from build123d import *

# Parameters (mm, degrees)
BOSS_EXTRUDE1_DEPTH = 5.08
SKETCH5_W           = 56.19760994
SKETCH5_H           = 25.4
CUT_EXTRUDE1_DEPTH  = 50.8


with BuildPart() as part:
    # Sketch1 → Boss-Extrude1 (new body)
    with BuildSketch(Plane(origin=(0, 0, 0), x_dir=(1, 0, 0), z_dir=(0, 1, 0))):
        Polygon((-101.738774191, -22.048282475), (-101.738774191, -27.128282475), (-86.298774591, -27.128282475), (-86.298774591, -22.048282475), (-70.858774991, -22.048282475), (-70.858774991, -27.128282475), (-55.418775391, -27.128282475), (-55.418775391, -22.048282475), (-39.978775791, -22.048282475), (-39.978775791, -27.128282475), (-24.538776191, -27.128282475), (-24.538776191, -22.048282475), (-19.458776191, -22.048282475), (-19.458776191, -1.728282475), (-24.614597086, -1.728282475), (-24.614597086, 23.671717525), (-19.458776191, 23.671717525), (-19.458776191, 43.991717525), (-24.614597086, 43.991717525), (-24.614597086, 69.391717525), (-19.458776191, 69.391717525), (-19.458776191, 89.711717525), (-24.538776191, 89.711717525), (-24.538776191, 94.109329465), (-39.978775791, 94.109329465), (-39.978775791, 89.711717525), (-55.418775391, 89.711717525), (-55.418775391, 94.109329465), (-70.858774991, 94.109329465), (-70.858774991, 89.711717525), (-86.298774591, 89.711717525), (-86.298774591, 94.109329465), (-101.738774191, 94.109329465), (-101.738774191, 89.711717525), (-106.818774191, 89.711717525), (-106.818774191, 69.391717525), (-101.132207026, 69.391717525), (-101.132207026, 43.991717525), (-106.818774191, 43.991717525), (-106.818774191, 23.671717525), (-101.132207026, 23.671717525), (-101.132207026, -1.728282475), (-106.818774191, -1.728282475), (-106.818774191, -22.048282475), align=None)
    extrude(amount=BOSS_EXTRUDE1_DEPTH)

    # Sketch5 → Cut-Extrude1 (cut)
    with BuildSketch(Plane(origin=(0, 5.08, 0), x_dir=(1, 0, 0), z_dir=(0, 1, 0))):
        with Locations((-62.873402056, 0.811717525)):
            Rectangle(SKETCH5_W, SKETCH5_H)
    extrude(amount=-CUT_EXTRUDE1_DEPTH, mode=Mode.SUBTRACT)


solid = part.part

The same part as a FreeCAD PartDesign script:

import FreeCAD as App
import Part
import Sketcher
from FreeCAD import Vector
Q = App.Units.Quantity

doc = App.newDocument("Part")
params = doc.addObject("Spreadsheet::Sheet", "Params")
for row, (alias, value) in enumerate([
    ("sketch1_height", "1 in"),
    ("sketch1_width", "0.2 in"),
    ("sketch1_height2", "0.8 in"),
    ("pad1_length", "0.2 in"),
    ("sketch2_height", "1 in"),
    ("pocket1_length", "2 in"),
], start=1):
    params.set(f"A{row}", alias)
    params.set(f"B{row}", "=" + value)
    params.setAlias(f"B{row}", alias)

body = doc.addObject("PartDesign::Body", "Body")

sketch1 = body.newObject("Sketcher::SketchObject", "Sketch")
sketch1.AttachmentSupport = (doc.getObject("XZ_Plane"), [""])
sketch1.MapMode = "FlatFace"
sketch1.addGeometry(Part.LineSegment(Vector(-101.7, 22, 0), Vector(-101.7, 27.1, 0)), False)
sketch1.addGeometry(Part.LineSegment(Vector(-101.7, 27.1, 0), Vector(-86.3, 27.1, 0)), False)
sketch1.addGeometry(Part.LineSegment(Vector(-86.3, 27.1, 0), Vector(-86.3, 22, 0)), False)
sketch1.addGeometry(Part.LineSegment(Vector(-86.3, 22, 0), Vector(-70.9, 22, 0)), False)
sketch1.addGeometry(Part.LineSegment(Vector(-70.9, 22, 0), Vector(-70.9, 27.1, 0)), False)
sketch1.addGeometry(Part.LineSegment(Vector(-70.9, 27.1, 0), Vector(-55.4, 27.1, 0)), False)
sketch1.addGeometry(Part.LineSegment(Vector(-55.4, 27.1, 0), Vector(-55.4, 22, 0)), False)
sketch1.addGeometry(Part.LineSegment(Vector(-55.4, 22, 0), Vector(-40, 22, 0)), False)
sketch1.addGeometry(Part.LineSegment(Vector(-40, 22, 0), Vector(-40, 27.1, 0)), False)
sketch1.addGeometry(Part.LineSegment(Vector(-40, 27.1, 0), Vector(-24.5, 27.1, 0)), False)
sketch1.addGeometry(Part.LineSegment(Vector(-24.5, 27.1, 0), Vector(-24.5, 22, 0)), False)
sketch1.addGeometry(Part.LineSegment(Vector(-24.5, 22, 0), Vector(-19.5, 22, 0)), False)
sketch1.addGeometry(Part.LineSegment(Vector(-19.5, 22, 0), Vector(-19.5, 1.7, 0)), False)
sketch1.addGeometry(Part.LineSegment(Vector(-19.5, 1.7, 0), Vector(-24.6, 1.7, 0)), False)
sketch1.addGeometry(Part.LineSegment(Vector(-24.6, 1.7, 0), Vector(-24.6, -23.7, 0)), False)
sketch1.addGeometry(Part.LineSegment(Vector(-24.6, -23.7, 0), Vector(-19.5, -23.7, 0)), False)
sketch1.addGeometry(Part.LineSegment(Vector(-19.5, -23.7, 0), Vector(-19.5, -44, 0)), False)
sketch1.addGeometry(Part.LineSegment(Vector(-19.5, -44, 0), Vector(-24.6, -44, 0)), False)
sketch1.addGeometry(Part.LineSegment(Vector(-24.6, -44, 0), Vector(-24.6, -69.4, 0)), False)
sketch1.addGeometry(Part.LineSegment(Vector(-24.6, -69.4, 0), Vector(-19.5, -69.4, 0)), False)
sketch1.addGeometry(Part.LineSegment(Vector(-19.5, -69.4, 0), Vector(-19.5, -89.7, 0)), False)
sketch1.addGeometry(Part.LineSegment(Vector(-19.5, -89.7, 0), Vector(-24.5, -89.7, 0)), False)
sketch1.addGeometry(Part.LineSegment(Vector(-24.5, -89.7, 0), Vector(-24.5, -94.1, 0)), False)
sketch1.addGeometry(Part.LineSegment(Vector(-24.5, -94.1, 0), Vector(-40, -94.1, 0)), False)
sketch1.addGeometry(Part.LineSegment(Vector(-40, -94.1, 0), Vector(-40, -89.7, 0)), False)
sketch1.addGeometry(Part.LineSegment(Vector(-40, -89.7, 0), Vector(-55.4, -89.7, 0)), False)
sketch1.addGeometry(Part.LineSegment(Vector(-55.4, -89.7, 0), Vector(-55.4, -94.1, 0)), False)
sketch1.addGeometry(Part.LineSegment(Vector(-55.4, -94.1, 0), Vector(-70.9, -94.1, 0)), False)
sketch1.addGeometry(Part.LineSegment(Vector(-70.9, -94.1, 0), Vector(-70.9, -89.7, 0)), False)
sketch1.addGeometry(Part.LineSegment(Vector(-70.9, -89.7, 0), Vector(-86.3, -89.7, 0)), False)
sketch1.addGeometry(Part.LineSegment(Vector(-86.3, -89.7, 0), Vector(-86.3, -94.1, 0)), False)
sketch1.addGeometry(Part.LineSegment(Vector(-86.3, -94.1, 0), Vector(-101.7, -94.1, 0)), False)
sketch1.addGeometry(Part.LineSegment(Vector(-101.7, -94.1, 0), Vector(-101.7, -89.7, 0)), False)
sketch1.addGeometry(Part.LineSegment(Vector(-101.7, -89.7, 0), Vector(-106.8, -89.7, 0)), False)
sketch1.addGeometry(Part.LineSegment(Vector(-106.8, -89.7, 0), Vector(-106.8, -69.4, 0)), False)
sketch1.addGeometry(Part.LineSegment(Vector(-106.8, -69.4, 0), Vector(-101.1, -69.4, 0)), False)
sketch1.addGeometry(Part.LineSegment(Vector(-101.1, -69.4, 0), Vector(-101.1, -44, 0)), False)
sketch1.addGeometry(Part.LineSegment(Vector(-101.1, -44, 0), Vector(-106.8, -44, 0)), False)
sketch1.addGeometry(Part.LineSegment(Vector(-106.8, -44, 0), Vector(-106.8, -23.7, 0)), False)
sketch1.addGeometry(Part.LineSegment(Vector(-106.8, -23.7, 0), Vector(-101.1, -23.7, 0)), False)
sketch1.addGeometry(Part.LineSegment(Vector(-101.1, -23.7, 0), Vector(-101.1, 1.7, 0)), False)
sketch1.addGeometry(Part.LineSegment(Vector(-101.1, 1.7, 0), Vector(-106.8, 1.7, 0)), False)
sketch1.addGeometry(Part.LineSegment(Vector(-106.8, 1.7, 0), Vector(-106.8, 22, 0)), False)
sketch1.addGeometry(Part.LineSegment(Vector(-106.8, 22, 0), Vector(-101.7, 22, 0)), False)
sketch1.addConstraint(Sketcher.Constraint("Coincident", 0, 2, 1, 1))
sketch1.addConstraint(Sketcher.Constraint("Coincident", 1, 2, 2, 1))
sketch1.addConstraint(Sketcher.Constraint("Coincident", 2, 2, 3, 1))
sketch1.addConstraint(Sketcher.Constraint("Coincident", 3, 2, 4, 1))
sketch1.addConstraint(Sketcher.Constraint("Coincident", 4, 2, 5, 1))
sketch1.addConstraint(Sketcher.Constraint("Coincident", 5, 2, 6, 1))
sketch1.addConstraint(Sketcher.Constraint("Coincident", 6, 2, 7, 1))
sketch1.addConstraint(Sketcher.Constraint("Coincident", 7, 2, 8, 1))
sketch1.addConstraint(Sketcher.Constraint("Coincident", 8, 2, 9, 1))
sketch1.addConstraint(Sketcher.Constraint("Coincident", 9, 2, 10, 1))
sketch1.addConstraint(Sketcher.Constraint("Coincident", 10, 2, 11, 1))
sketch1.addConstraint(Sketcher.Constraint("Coincident", 11, 2, 12, 1))
sketch1.addConstraint(Sketcher.Constraint("Coincident", 12, 2, 13, 1))
sketch1.addConstraint(Sketcher.Constraint("Coincident", 13, 2, 14, 1))
sketch1.addConstraint(Sketcher.Constraint("Coincident", 14, 2, 15, 1))
sketch1.addConstraint(Sketcher.Constraint("Coincident", 15, 2, 16, 1))
sketch1.addConstraint(Sketcher.Constraint("Coincident", 16, 2, 17, 1))
sketch1.addConstraint(Sketcher.Constraint("Coincident", 17, 2, 18, 1))
sketch1.addConstraint(Sketcher.Constraint("Coincident", 18, 2, 19, 1))
sketch1.addConstraint(Sketcher.Constraint("Coincident", 19, 2, 20, 1))
sketch1.addConstraint(Sketcher.Constraint("Coincident", 20, 2, 21, 1))
sketch1.addConstraint(Sketcher.Constraint("Coincident", 21, 2, 22, 1))
sketch1.addConstraint(Sketcher.Constraint("Coincident", 22, 2, 23, 1))
sketch1.addConstraint(Sketcher.Constraint("Coincident", 23, 2, 24, 1))
sketch1.addConstraint(Sketcher.Constraint("Coincident", 24, 2, 25, 1))
sketch1.addConstraint(Sketcher.Constraint("Coincident", 25, 2, 26, 1))
sketch1.addConstraint(Sketcher.Constraint("Coincident", 26, 2, 27, 1))
sketch1.addConstraint(Sketcher.Constraint("Coincident", 27, 2, 28, 1))
sketch1.addConstraint(Sketcher.Constraint("Coincident", 28, 2, 29, 1))
sketch1.addConstraint(Sketcher.Constraint("Coincident", 29, 2, 30, 1))
sketch1.addConstraint(Sketcher.Constraint("Coincident", 30, 2, 31, 1))
sketch1.addConstraint(Sketcher.Constraint("Coincident", 31, 2, 32, 1))
sketch1.addConstraint(Sketcher.Constraint("Coincident", 32, 2, 33, 1))
sketch1.addConstraint(Sketcher.Constraint("Coincident", 33, 2, 34, 1))
sketch1.addConstraint(Sketcher.Constraint("Coincident", 34, 2, 35, 1))
sketch1.addConstraint(Sketcher.Constraint("Coincident", 35, 2, 36, 1))
sketch1.addConstraint(Sketcher.Constraint("Coincident", 36, 2, 37, 1))
sketch1.addConstraint(Sketcher.Constraint("Coincident", 37, 2, 38, 1))
sketch1.addConstraint(Sketcher.Constraint("Coincident", 38, 2, 39, 1))
sketch1.addConstraint(Sketcher.Constraint("Coincident", 39, 2, 40, 1))
sketch1.addConstraint(Sketcher.Constraint("Coincident", 40, 2, 41, 1))
sketch1.addConstraint(Sketcher.Constraint("Coincident", 41, 2, 42, 1))
sketch1.addConstraint(Sketcher.Constraint("Coincident", 42, 2, 43, 1))
sketch1.addConstraint(Sketcher.Constraint("Coincident", 43, 2, 0, 1))
sketch1.addConstraint(Sketcher.Constraint("Vertical", 0))
sketch1.addConstraint(Sketcher.Constraint("Horizontal", 1))
sketch1.addConstraint(Sketcher.Constraint("Vertical", 2))
sketch1.addConstraint(Sketcher.Constraint("Horizontal", 3))
sketch1.addConstraint(Sketcher.Constraint("Vertical", 4))
sketch1.addConstraint(Sketcher.Constraint("Horizontal", 5))
sketch1.addConstraint(Sketcher.Constraint("Vertical", 6))
sketch1.addConstraint(Sketcher.Constraint("Horizontal", 7))
sketch1.addConstraint(Sketcher.Constraint("Vertical", 8))
sketch1.addConstraint(Sketcher.Constraint("Horizontal", 9))
sketch1.addConstraint(Sketcher.Constraint("Vertical", 10))
sketch1.addConstraint(Sketcher.Constraint("Horizontal", 11))
sketch1.addConstraint(Sketcher.Constraint("Vertical", 12))
sketch1.addConstraint(Sketcher.Constraint("Horizontal", 13))
sketch1.addConstraint(Sketcher.Constraint("Vertical", 14))
sketch1.addConstraint(Sketcher.Constraint("Horizontal", 15))
sketch1.addConstraint(Sketcher.Constraint("Vertical", 16))
sketch1.addConstraint(Sketcher.Constraint("Horizontal", 17))
sketch1.addConstraint(Sketcher.Constraint("Vertical", 18))
sketch1.addConstraint(Sketcher.Constraint("Horizontal", 19))
sketch1.addConstraint(Sketcher.Constraint("Vertical", 20))
sketch1.addConstraint(Sketcher.Constraint("Horizontal", 21))
sketch1.addConstraint(Sketcher.Constraint("Vertical", 22))
sketch1.addConstraint(Sketcher.Constraint("Horizontal", 23))
sketch1.addConstraint(Sketcher.Constraint("Vertical", 24))
sketch1.addConstraint(Sketcher.Constraint("Horizontal", 25))
sketch1.addConstraint(Sketcher.Constraint("Vertical", 26))
sketch1.addConstraint(Sketcher.Constraint("Horizontal", 27))
sketch1.addConstraint(Sketcher.Constraint("Vertical", 28))
sketch1.addConstraint(Sketcher.Constraint("Horizontal", 29))
sketch1.addConstraint(Sketcher.Constraint("Vertical", 30))
sketch1.addConstraint(Sketcher.Constraint("Horizontal", 31))
sketch1.addConstraint(Sketcher.Constraint("Vertical", 32))
sketch1.addConstraint(Sketcher.Constraint("Horizontal", 33))
sketch1.addConstraint(Sketcher.Constraint("Vertical", 34))
sketch1.addConstraint(Sketcher.Constraint("Horizontal", 35))
sketch1.addConstraint(Sketcher.Constraint("Vertical", 36))
sketch1.addConstraint(Sketcher.Constraint("Horizontal", 37))
sketch1.addConstraint(Sketcher.Constraint("Vertical", 38))
sketch1.addConstraint(Sketcher.Constraint("Horizontal", 39))
sketch1.addConstraint(Sketcher.Constraint("Vertical", 40))
sketch1.addConstraint(Sketcher.Constraint("Horizontal", 41))
sketch1.addConstraint(Sketcher.Constraint("Vertical", 42))
sketch1.addConstraint(Sketcher.Constraint("Horizontal", 43))
sketch1.addConstraint(Sketcher.Constraint("Horizontal", 1, 2, 4, 2))
sketch1.addConstraint(Sketcher.Constraint("Horizontal", 3, 2, 6, 2))
sketch1.addConstraint(Sketcher.Constraint("Horizontal", 5, 2, 8, 2))
sketch1.addConstraint(Sketcher.Constraint("Horizontal", 7, 2, 10, 2))
sketch1.addConstraint(Sketcher.Constraint("Horizontal", 21, 2, 24, 2))
sketch1.addConstraint(Sketcher.Constraint("Horizontal", 23, 2, 26, 2))
sketch1.addConstraint(Sketcher.Constraint("Horizontal", 25, 2, 28, 2))
sketch1.addConstraint(Sketcher.Constraint("Horizontal", 27, 2, 30, 2))
sketch1.addConstraint(Sketcher.Constraint("Horizontal", 29, 2, 32, 2))
sketch1.addConstraint(Sketcher.Constraint("Horizontal", 19, 2, 34, 2))
sketch1.addConstraint(Sketcher.Constraint("Horizontal", 17, 2, 36, 2))
sketch1.addConstraint(Sketcher.Constraint("Horizontal", 15, 2, 38, 2))
sketch1.addConstraint(Sketcher.Constraint("Horizontal", 13, 2, 40, 2))
sketch1.addConstraint(Sketcher.Constraint("Horizontal", 11, 2, 42, 2))
sketch1.addConstraint(Sketcher.Constraint("Vertical", 12, 2, 15, 2))
sketch1.addConstraint(Sketcher.Constraint("Vertical", 14, 2, 17, 2))
sketch1.addConstraint(Sketcher.Constraint("Vertical", 16, 2, 19, 2))
sketch1.addConstraint(Sketcher.Constraint("Vertical", 10, 2, 21, 2))
sketch1.addConstraint(Sketcher.Constraint("Vertical", 8, 2, 23, 2))
sketch1.addConstraint(Sketcher.Constraint("Vertical", 6, 2, 25, 2))
sketch1.addConstraint(Sketcher.Constraint("Vertical", 4, 2, 27, 2))
sketch1.addConstraint(Sketcher.Constraint("Vertical", 2, 2, 29, 2))
sketch1.addConstraint(Sketcher.Constraint("Vertical", 0, 2, 31, 2))
sketch1.addConstraint(Sketcher.Constraint("Vertical", 34, 2, 37, 2))
sketch1.addConstraint(Sketcher.Constraint("Vertical", 36, 2, 39, 2))
sketch1.addConstraint(Sketcher.Constraint("Vertical", 38, 2, 41, 2))
sketch1.addConstraint(Sketcher.Constraint("Equal", 1, 3))
sketch1.addConstraint(Sketcher.Constraint("Equal", 3, 5))
sketch1.addConstraint(Sketcher.Constraint("Equal", 5, 7))
sketch1.addConstraint(Sketcher.Constraint("Equal", 7, 9))
sketch1.addConstraint(Sketcher.Constraint("Equal", 21, 33))
sketch1.addConstraint(Sketcher.Constraint("Equal", 43, 0))
sketch1.addConstraint(Sketcher.Constraint("Equal", 12, 16))
sketch1.addConstraint(Sketcher.Constraint("Equal", 14, 18))
sketch1.addConstraint(Sketcher.Constraint("Equal", 16, 20))
sketch1.addConstraint(Sketcher.Constraint("DistanceY", 14, 2, 14, 1, Q("1 in")))
sketch1.addConstraint(Sketcher.Constraint("DistanceX", 11, 1, 11, 2, Q("0.2 in")))
sketch1.addConstraint(Sketcher.Constraint("DistanceY", 12, 2, 12, 1, Q("0.8 in")))
sketch1.addConstraint(Sketcher.Constraint("DistanceX", 1, 1, 1, 2, 15.44))
sketch1.addConstraint(Sketcher.Constraint("DistanceX", 13, 2, 13, 1, 5.155821))
sketch1.addConstraint(Sketcher.Constraint("DistanceY", 22, 2, 22, 1, 4.397612))
sketch1.addConstraint(Sketcher.Constraint("DistanceX", 35, 1, 35, 2, 5.686567))
sketch1.addConstraint(Sketcher.Constraint("DistanceY", 22, 2, -1, 1, 94.109329))
sketch1.addConstraint(Sketcher.Constraint("DistanceX", 0, 2, -1, 1, 101.738774))
sketch1.setExpression("Constraints[123]", "Params.sketch1_height")
sketch1.setExpression("Constraints[124]", "Params.sketch1_width")
sketch1.setExpression("Constraints[125]", "Params.sketch1_height2")
pad1 = body.newObject("PartDesign::Pad", "Pad")
pad1.Profile = sketch1
pad1.setExpression("Length", "Params.pad1_length")
pad1.Reversed = True

sketch2 = body.newObject("Sketcher::SketchObject", "Sketch001")
sketch2.AttachmentSupport = (doc.getObject("XZ_Plane"), [""])
sketch2.MapMode = "FlatFace"
sketch2.AttachmentOffset = App.Placement(Vector(0, 0, -0.2 * 25.4), App.Rotation())
sketch2.addGeometry(Part.LineSegment(Vector(-91, -14, 0), Vector(-91, 12, 0)), False)
sketch2.addGeometry(Part.LineSegment(Vector(-91, 12, 0), Vector(-35, 12, 0)), False)
sketch2.addGeometry(Part.LineSegment(Vector(-35, 12, 0), Vector(-35, -14, 0)), False)
sketch2.addGeometry(Part.LineSegment(Vector(-35, -14, 0), Vector(-91, -14, 0)), False)
sketch2.addConstraint(Sketcher.Constraint("Coincident", 0, 2, 1, 1))
sketch2.addConstraint(Sketcher.Constraint("Coincident", 1, 2, 2, 1))
sketch2.addConstraint(Sketcher.Constraint("Coincident", 2, 2, 3, 1))
sketch2.addConstraint(Sketcher.Constraint("Coincident", 3, 2, 0, 1))
sketch2.addConstraint(Sketcher.Constraint("Vertical", 0))
sketch2.addConstraint(Sketcher.Constraint("Horizontal", 1))
sketch2.addConstraint(Sketcher.Constraint("Vertical", 2))
sketch2.addConstraint(Sketcher.Constraint("Horizontal", 3))
sketch2.addConstraint(Sketcher.Constraint("DistanceY", 0, 1, 0, 2, Q("1 in")))
sketch2.addConstraint(Sketcher.Constraint("DistanceX", 1, 1, 1, 2, 56.19761))
sketch2.addConstraint(Sketcher.Constraint("DistanceX", 0, 2, -1, 1, 90.972207))
sketch2.addConstraint(Sketcher.Constraint("DistanceY", -1, 1, 0, 2, 11.888282))
sketch2.setExpression("Constraints[8]", "Params.sketch2_height")
pocket1 = body.newObject("PartDesign::Pocket", "Pocket")
pocket1.Profile = sketch2
pocket1.setExpression("Length", "Params.pocket1_length")
pocket1.Reversed = True

doc.recompute()
